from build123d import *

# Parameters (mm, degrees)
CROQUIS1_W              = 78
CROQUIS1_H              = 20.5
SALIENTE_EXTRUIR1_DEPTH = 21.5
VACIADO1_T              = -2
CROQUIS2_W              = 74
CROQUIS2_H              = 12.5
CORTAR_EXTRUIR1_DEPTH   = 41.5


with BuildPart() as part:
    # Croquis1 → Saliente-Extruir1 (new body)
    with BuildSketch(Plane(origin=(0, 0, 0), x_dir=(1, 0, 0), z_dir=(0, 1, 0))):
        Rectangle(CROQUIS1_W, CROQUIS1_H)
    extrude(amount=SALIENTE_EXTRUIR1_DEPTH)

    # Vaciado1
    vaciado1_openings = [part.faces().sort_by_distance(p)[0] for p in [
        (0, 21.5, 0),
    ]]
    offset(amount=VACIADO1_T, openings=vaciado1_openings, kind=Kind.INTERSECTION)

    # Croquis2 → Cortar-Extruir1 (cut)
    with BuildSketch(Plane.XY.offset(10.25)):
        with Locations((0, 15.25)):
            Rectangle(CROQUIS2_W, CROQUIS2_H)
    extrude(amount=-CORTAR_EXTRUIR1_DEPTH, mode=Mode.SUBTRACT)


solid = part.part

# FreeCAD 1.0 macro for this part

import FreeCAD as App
import Part
import Sketcher
Q = App.Units.Quantity


def faces_at(feature, points):
    """Names of the faces that lie closest to the given points."""
    faces = feature.Shape.Faces
    near = lambda p: min(range(len(faces)), key=lambda i: faces[i].distToShape(Part.Vertex(*p))[0])
    return sorted({f"Face{near(p) + 1}" for p in points})

doc = App.newDocument("Part")
body = doc.addObject("PartDesign::Body", "Body")

sketch1 = doc.addObject("Sketcher::SketchObject", "Sketch")
body.addObject(sketch1)
sketch1.AttachmentSupport = (doc.XZ_Plane, [""])
sketch1.MapMode = "FlatFace"
sketch1.addGeometry([
    Part.LineSegment(App.Vector(-39, -10, 0), App.Vector(-39, 10, 0)),
    Part.LineSegment(App.Vector(-39, 10, 0), App.Vector(39, 10, 0)),
    Part.LineSegment(App.Vector(39, 10, 0), App.Vector(39, -10, 0)),
    Part.LineSegment(App.Vector(39, -10, 0), App.Vector(-39, -10, 0)),
], False)
sketch1.addConstraint([
    Sketcher.Constraint("Coincident", 0, 2, 1, 1),
    Sketcher.Constraint("Coincident", 1, 2, 2, 1),
    Sketcher.Constraint("Coincident", 2, 2, 3, 1),
    Sketcher.Constraint("Coincident", 3, 2, 0, 1),
    Sketcher.Constraint("Vertical", 0),
    Sketcher.Constraint("Horizontal", 1),
    Sketcher.Constraint("Vertical", 2),
    Sketcher.Constraint("Horizontal", 3),
    Sketcher.Constraint("Symmetric", 0, 2, 2, 2, -1, 1),
    Sketcher.Constraint("DistanceX", 1, 1, 1, 2, Q("78 mm")),
    Sketcher.Constraint("DistanceY", 0, 1, 0, 2, Q("20.5 mm")),
])
pad1 = doc.addObject("PartDesign::Pad", "Pad")
body.addObject(pad1)
pad1.Profile = sketch1
pad1.Length = 21.5
pad1.Reversed = True
doc.recompute()

thickness = doc.addObject("PartDesign::Thickness", "Thickness")
body.addObject(thickness)
thickness.Base = (pad1, faces_at(pad1, [(0, 21.5, 0)]))
thickness.Value = 2
thickness.Reversed = True
thickness.Join = "Intersection"

sketch2 = doc.addObject("Sketcher::SketchObject", "Sketch001")
body.addObject(sketch2)
sketch2.AttachmentSupport = (doc.XY_Plane, [""])
sketch2.MapMode = "FlatFace"
sketch2.AttachmentOffset = App.Placement(App.Vector(0, 0, 10.25), App.Rotation())
sketch2.addGeometry([
    Part.LineSegment(App.Vector(-37, 22, 0), App.Vector(-37, 9, 0)),
    Part.LineSegment(App.Vector(-37, 9, 0), App.Vector(37, 9, 0)),
    Part.LineSegment(App.Vector(37, 9, 0), App.Vector(37, 22, 0)),
    Part.LineSegment(App.Vector(37, 22, 0), App.Vector(-37, 22, 0)),
], False)
sketch2.addConstraint([
    Sketcher.Constraint("Coincident", 0, 2, 1, 1),
    Sketcher.Constraint("Coincident", 1, 2, 2, 1),
    Sketcher.Constraint("Coincident", 2, 2, 3, 1),
    Sketcher.Constraint("Coincident", 3, 2, 0, 1),
    Sketcher.Constraint("Vertical", 0),
    Sketcher.Constraint("Horizontal", 1),
    Sketcher.Constraint("Vertical", 2),
    Sketcher.Constraint("Horizontal", 3),
    Sketcher.Constraint("DistanceX", 1, 1, 1, 2, Q("74 mm")),
    Sketcher.Constraint("DistanceY", 0, 2, 0, 1, Q("12.5 mm")),
    Sketcher.Constraint("DistanceX", 0, 2, -1, 1, Q("37 mm")),
    Sketcher.Constraint("DistanceY", -1, 1, 0, 2, Q("9 mm")),
])
pocket1 = doc.addObject("PartDesign::Pocket", "Pocket")
body.addObject(pocket1)
pocket1.Profile = sketch2
pocket1.Length = 41.5

doc.recompute()
